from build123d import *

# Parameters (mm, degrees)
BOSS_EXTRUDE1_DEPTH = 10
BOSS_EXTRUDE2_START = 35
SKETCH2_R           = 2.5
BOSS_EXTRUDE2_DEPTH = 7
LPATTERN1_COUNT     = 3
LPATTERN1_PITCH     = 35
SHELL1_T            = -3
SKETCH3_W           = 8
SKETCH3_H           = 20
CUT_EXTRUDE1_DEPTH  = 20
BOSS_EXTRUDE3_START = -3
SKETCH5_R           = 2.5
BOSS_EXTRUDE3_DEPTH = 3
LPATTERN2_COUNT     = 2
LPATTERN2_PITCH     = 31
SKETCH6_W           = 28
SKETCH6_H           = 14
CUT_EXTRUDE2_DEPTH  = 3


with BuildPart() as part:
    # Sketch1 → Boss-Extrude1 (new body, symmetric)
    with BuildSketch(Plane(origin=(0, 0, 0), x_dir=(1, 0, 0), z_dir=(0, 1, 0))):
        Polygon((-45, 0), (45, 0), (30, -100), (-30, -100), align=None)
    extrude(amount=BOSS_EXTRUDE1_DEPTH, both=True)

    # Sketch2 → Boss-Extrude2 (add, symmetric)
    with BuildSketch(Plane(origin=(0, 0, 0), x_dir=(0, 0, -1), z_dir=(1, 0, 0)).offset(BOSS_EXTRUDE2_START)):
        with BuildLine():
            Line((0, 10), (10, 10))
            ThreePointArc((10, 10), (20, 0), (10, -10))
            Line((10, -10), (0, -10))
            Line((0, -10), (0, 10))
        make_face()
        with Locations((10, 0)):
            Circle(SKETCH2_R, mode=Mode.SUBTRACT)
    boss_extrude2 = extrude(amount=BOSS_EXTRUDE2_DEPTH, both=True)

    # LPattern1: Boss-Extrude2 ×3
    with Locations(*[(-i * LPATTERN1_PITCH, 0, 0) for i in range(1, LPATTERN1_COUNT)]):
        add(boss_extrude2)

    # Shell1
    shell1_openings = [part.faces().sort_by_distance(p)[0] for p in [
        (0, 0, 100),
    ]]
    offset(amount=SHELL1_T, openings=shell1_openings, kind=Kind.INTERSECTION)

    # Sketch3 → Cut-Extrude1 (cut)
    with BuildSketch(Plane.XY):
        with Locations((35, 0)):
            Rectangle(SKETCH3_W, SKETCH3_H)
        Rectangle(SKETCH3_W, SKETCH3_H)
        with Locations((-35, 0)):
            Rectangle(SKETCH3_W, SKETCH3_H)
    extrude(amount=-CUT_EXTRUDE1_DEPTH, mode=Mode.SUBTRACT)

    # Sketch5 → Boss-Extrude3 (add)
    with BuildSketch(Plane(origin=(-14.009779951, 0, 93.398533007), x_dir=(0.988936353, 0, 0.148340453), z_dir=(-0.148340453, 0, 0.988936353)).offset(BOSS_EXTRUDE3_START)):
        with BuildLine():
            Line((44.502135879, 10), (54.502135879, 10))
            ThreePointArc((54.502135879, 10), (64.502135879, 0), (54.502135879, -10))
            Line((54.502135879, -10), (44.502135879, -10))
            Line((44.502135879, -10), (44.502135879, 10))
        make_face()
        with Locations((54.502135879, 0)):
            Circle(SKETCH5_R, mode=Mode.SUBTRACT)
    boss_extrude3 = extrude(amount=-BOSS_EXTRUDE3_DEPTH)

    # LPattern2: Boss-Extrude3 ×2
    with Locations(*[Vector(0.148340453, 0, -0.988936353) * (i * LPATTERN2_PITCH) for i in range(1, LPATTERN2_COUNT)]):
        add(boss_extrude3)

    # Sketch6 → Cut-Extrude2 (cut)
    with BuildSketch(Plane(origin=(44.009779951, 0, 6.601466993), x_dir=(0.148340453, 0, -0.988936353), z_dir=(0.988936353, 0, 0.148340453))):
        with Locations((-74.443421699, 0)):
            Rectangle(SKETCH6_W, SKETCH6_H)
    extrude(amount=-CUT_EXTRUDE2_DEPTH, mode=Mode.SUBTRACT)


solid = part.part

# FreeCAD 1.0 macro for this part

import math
import FreeCAD as App
import Part
import Sketcher
from FreeCAD import Vector


def faces_at(feature, points):
    """Names of the faces that lie closest to the given points."""
    faces = feature.Shape.Faces
    near = lambda p: min(range(len(faces)), key=lambda i: faces[i].distToShape(Part.Vertex(*p))[0])
    return sorted({f"Face{near(p) + 1}" for p in points})


def add_polygon(sketch, points):
    """Adds a closed chain of lines whose ends are joined by coincident constraints."""
    first, n = sketch.GeometryCount, len(points)
    for a, b in zip(points, points[1:] + points[:1]):
        sketch.addGeometry(Part.LineSegment(App.Vector(*a, 0), App.Vector(*b, 0)), False)
    for i in range(n):
        sketch.addConstraint(Sketcher.Constraint("Coincident", first + i, 2, first + (i + 1) % n, 1))

doc = App.newDocument("Part")
params = doc.addObject("Spreadsheet::Sheet", "Params")
for row, (alias, value) in enumerate([
    ("sketch1_width", "90 mm"),
    ("sketch1_width2", "60 mm"),
    ("pad1_length", "20 mm"),
    ("sketch2_diameter", "5 mm"),
    ("sketch2_radius", "10 mm"),
    ("sketch2_height", "10 mm"),
    ("pad2_length", "14 mm"),
    ("linearpattern_pitch", "35 mm"),
    ("thickness_wall", "3 mm"),
    ("sketch3_width", "8 mm"),
    ("sketch3_height", "20 mm"),
    ("pocket1_length", "20 mm"),
    ("sketch4_diameter", "5 mm"),
    ("sketch4_radius", "10 mm"),
    ("sketch4_width", "10 mm"),
    ("pad3_length", "3 mm"),
    ("linearpattern2_pitch", "31 mm"),
    ("sketch5_width", "28 mm"),
    ("sketch5_height", "14 mm"),
    ("pocket2_length", "3 mm"),
], start=1):
    params.set(f"A{row}", alias)
    params.set(f"B{row}", "=" + value)
    params.setAlias(f"B{row}", alias)

body = doc.addObject("PartDesign::Body", "Body")

# Sketch on XZ plane
sketch1 = doc.addObject("Sketcher::SketchObject", "Sketch")
body.addObject(sketch1)
sketch1.AttachmentSupport = (doc.XZ_Plane, [""])
sketch1.MapMode = "FlatFace"
add_polygon(sketch1, [(45, 0), (-45, 0), (-30, 100), (30, 100)])  # lines 0-3
sketch1.addConstraint([
    Sketcher.Constraint("Horizontal", 0),
    Sketcher.Constraint("Horizontal", 2),
    Sketcher.Constraint("Symmetric", 0, 2, 3, 2, -1, 1),
    Sketcher.Constraint("Equal", 1, 3),
    Sketcher.Constraint("DistanceX", 0, 2, 0, 1, 90.0),
    Sketcher.Constraint("DistanceX", 2, 1, 2, 2, 60.0),
    Sketcher.Constraint("DistanceY", -1, 1, 1, 2, 100.0),
])
sketch1.setExpression("Constraints[8]", "Params.sketch1_width")
sketch1.setExpression("Constraints[9]", "Params.sketch1_width2")
pad1 = doc.addObject("PartDesign::Pad", "Pad")
body.addObject(pad1)
pad1.Profile = sketch1
pad1.setExpression("Length", "Params.pad1_length")
pad1.Midplane = True

# Sketch on YZ plane
sketch2 = doc.addObject("Sketcher::SketchObject", "Sketch001")
body.addObject(sketch2)
sketch2.AttachmentSupport = (doc.YZ_Plane, [""])
sketch2.MapMode = "FlatFace"
sketch2.AttachmentOffset = App.Placement(Vector(0, 0, 35), App.Rotation())
sketch2.addGeometry([
    Part.LineSegment(Vector(10, -10, 0), Vector(10, 0, 0)),  # 0
    Part.LineSegment(Vector(10, 0, 0), Vector(-10, 0, 0)),  # 1
    Part.LineSegment(Vector(-10, 0, 0), Vector(-10, -10, 0)),  # 2
    Part.ArcOfCircle(Part.Circle(Vector(0, -10, 0), Vector(0, 0, 1), 10), math.radians(180), math.radians(360)),  # 3
    Part.Circle(Vector(0, -10, 0), Vector(0, 0, 1), 2.5),  # 4
], False)
sketch2.addConstraint([
    Sketcher.Constraint("Coincident", 0, 2, 1, 1),
    Sketcher.Constraint("Coincident", 1, 2, 2, 1),
    Sketcher.Constraint("Tangent", 2, 2, 3, 1),
    Sketcher.Constraint("Tangent", 3, 2, 0, 1),
    Sketcher.Constraint("Vertical", 0),
    Sketcher.Constraint("Horizontal", 1),
    Sketcher.Constraint("Vertical", 2),
    Sketcher.Constraint("Coincident", 4, 3, 3, 3),
    Sketcher.Constraint("Symmetric", 0, 2, 1, 2, -1, 1),
    Sketcher.Constraint("Diameter", 4, 5.0),
    Sketcher.Constraint("Radius", 3, 10.0),
    Sketcher.Constraint("DistanceY", 0, 1, 0, 2, 10.0),
])
sketch2.setExpression("Constraints[9]", "Params.sketch2_diameter")
sketch2.setExpression("Constraints[10]", "Params.sketch2_radius")
sketch2.setExpression("Constraints[11]", "Params.sketch2_height")
pad2 = doc.addObject("PartDesign::Pad", "Pad001")
body.addObject(pad2)
pad2.Profile = sketch2
pad2.setExpression("Length", "Params.pad2_length")
pad2.Midplane = True
doc.recompute()

linearpattern = doc.addObject("PartDesign::LinearPattern", "LinearPattern")
body.addObject(linearpattern)
linearpattern.Originals = [pad2]
linearpattern.Direction = (doc.X_Axis, [""])
linearpattern.Mode = "offset"
linearpattern.setExpression("Offset", "Params.linearpattern_pitch")
linearpattern.Occurrences = 3
linearpattern.Reversed = True
body.Tip = linearpattern
doc.recompute()

thickness = doc.addObject("PartDesign::Thickness", "Thickness")
body.addObject(thickness)
thickness.Base = (linearpattern, faces_at(linearpattern, [(0, 0, 100)]))
thickness.setExpression("Value", "Params.thickness_wall")
thickness.Reversed = True
thickness.Join = "Intersection"

# Sketch on XY plane
sketch3 = doc.addObject("Sketcher::SketchObject", "Sketch002")
body.addObject(sketch3)
sketch3.AttachmentSupport = (doc.XY_Plane, [""])
sketch3.MapMode = "FlatFace"
add_polygon(sketch3, [(31, 10), (31, -10), (39, -10), (39, 10)])  # lines 0-3
add_polygon(sketch3, [(-4, 10), (-4, -10), (4, -10), (4, 10)])  # lines 4-7
add_polygon(sketch3, [(-39, 10), (-39, -10), (-31, -10), (-31, 10)])  # lines 8-11
sketch3.addConstraint([
    Sketcher.Constraint("Vertical", 0),
    Sketcher.Constraint("Horizontal", 1),
    Sketcher.Constraint("Vertical", 2),
    Sketcher.Constraint("Horizontal", 3),
    Sketcher.Constraint("Vertical", 4),
    Sketcher.Constraint("Horizontal", 5),
    Sketcher.Constraint("Vertical", 6),
    Sketcher.Constraint("Horizontal", 7),
    Sketcher.Constraint("Vertical", 8),
    Sketcher.Constraint("Horizontal", 9),
    Sketcher.Constraint("Vertical", 10),
    Sketcher.Constraint("Horizontal", 11),
    Sketcher.Constraint("Symmetric", 4, 2, 6, 2, -1, 1),
    Sketcher.Constraint("Symmetric", 2, 2, 8, 2, -1, 1),
    Sketcher.Constraint("Symmetric", 0, 2, 10, 2, -1, 1),
    Sketcher.Constraint("Horizontal", 1, 2, 4, 2),
    Sketcher.Constraint("Horizontal", 3, 2, 6, 2),
    Sketcher.Constraint("Equal", 3, 5),
    Sketcher.Constraint("DistanceX", 1, 1, 1, 2, 8.0),
    Sketcher.Constraint("DistanceY", 0, 2, 0, 1, 20.0),
    Sketcher.Constraint("DistanceX", -1, 1, 0, 2, 31.0),
])
sketch3.setExpression("Constraints[30]", "Params.sketch3_width")
sketch3.setExpression("Constraints[31]", "Params.sketch3_height")
pocket1 = doc.addObject("PartDesign::Pocket", "Pocket")
body.addObject(pocket1)
pocket1.Profile = sketch3
pocket1.setExpression("Length", "Params.pocket1_length")

# Sketch on an angled plane
sketch4 = doc.addObject("Sketcher::SketchObject", "Sketch003")
body.addObject(sketch4)
sketch4.Placement = App.Placement(Vector(-13.564759, 0, 90.431724), App.Rotation(Vector(0.988936353, 0, 0.148340453), Vector(0, 1, 0), Vector(-0.148340453, 0, 0.988936353), "ZXY"))
sketch4.addGeometry([
    Part.LineSegment(Vector(54.502136, 10, 0), Vector(44.502136, 10, 0)),  # 0
    Part.LineSegment(Vector(44.502136, 10, 0), Vector(44.502136, -10, 0)),  # 1
    Part.LineSegment(Vector(44.502136, -10, 0), Vector(54.502136, -10, 0)),  # 2
    Part.ArcOfCircle(Part.Circle(Vector(54.502136, 0, 0), Vector(0, 0, 1), 10), math.radians(-90), math.radians(90)),  # 3
    Part.Circle(Vector(54.502136, 0, 0), Vector(0, 0, 1), 2.5),  # 4
], False)
sketch4.addConstraint([
    Sketcher.Constraint("Coincident", 0, 2, 1, 1),
    Sketcher.Constraint("Coincident", 1, 2, 2, 1),
    Sketcher.Constraint("Tangent", 2, 2, 3, 1),
    Sketcher.Constraint("Tangent", 3, 2, 0, 1),
    Sketcher.Constraint("Horizontal", 0),
    Sketcher.Constraint("Vertical", 1),
    Sketcher.Constraint("Horizontal", 2),
    Sketcher.Constraint("Coincident", 4, 3, 3, 3),
    Sketcher.Constraint("PointOnObject", 3, 3, -1),
    Sketcher.Constraint("Diameter", 4, 5.0),
    Sketcher.Constraint("Radius", 3, 10.0),
    Sketcher.Constraint("DistanceX", 0, 2, 0, 1, 10.0),
    Sketcher.Constraint("DistanceX", -1, 1, 3, 3, 54.502136),
])
sketch4.setExpression("Constraints[9]", "Params.sketch4_diameter")
sketch4.setExpression("Constraints[10]", "Params.sketch4_radius")
sketch4.setExpression("Constraints[11]", "Params.sketch4_width")
pad3 = doc.addObject("PartDesign::Pad", "Pad002")
body.addObject(pad3)
pad3.Profile = sketch4
pad3.setExpression("Length", "Params.pad3_length")
pad3.Reversed = True
doc.recompute()

datumline = doc.addObject("PartDesign::Line", "DatumLine")
body.addObject(datumline)
datumline.Placement = App.Placement(Vector(0, 0, 0), App.Rotation(Vector(0, 0, 1), Vector(0.148340453, 0, -0.988936353)))
linearpattern2 = doc.addObject("PartDesign::LinearPattern", "LinearPattern001")
body.addObject(linearpattern2)
linearpattern2.Originals = [pad3]
linearpattern2.Direction = (datumline, [""])
linearpattern2.Mode = "offset"
linearpattern2.setExpression("Offset", "Params.linearpattern2_pitch")
linearpattern2.Occurrences = 2
body.Tip = linearpattern2

# Sketch on an angled plane
sketch5 = doc.addObject("Sketcher::SketchObject", "Sketch004")
body.addObject(sketch5)
sketch5.Placement = App.Placement(Vector(44.00978, 0, 6.601467), App.Rotation(Vector(0.148340453, 0, -0.988936353), Vector(0, 1, 0), Vector(0.988936353, 0, 0.148340453), "ZXY"))
add_polygon(sketch5, [(-88.443422, 7), (-88.443422, -7), (-60.443422, -7), (-60.443422, 7)])  # lines 0-3
sketch5.addConstraint([
    Sketcher.Constraint("Vertical", 0),
    Sketcher.Constraint("Horizontal", 1),
    Sketcher.Constraint("Vertical", 2),
    Sketcher.Constraint("Horizontal", 3),
    Sketcher.Constraint("DistanceX", 1, 1, 1, 2, 28.0),
    Sketcher.Constraint("DistanceY", 0, 2, 0, 1, 14.0),
    Sketcher.Constraint("DistanceY", 0, 2, -1, 1, 7.0),
    Sketcher.Constraint("DistanceX", 0, 2, -1, 1, 88.443422),
])
sketch5.setExpression("Constraints[8]", "Params.sketch5_width")
sketch5.setExpression("Constraints[9]", "Params.sketch5_height")
pocket2 = doc.addObject("PartDesign::Pocket", "Pocket001")
body.addObject(pocket2)
pocket2.Profile = sketch5
pocket2.setExpression("Length", "Params.pocket2_length")

doc.recompute()
